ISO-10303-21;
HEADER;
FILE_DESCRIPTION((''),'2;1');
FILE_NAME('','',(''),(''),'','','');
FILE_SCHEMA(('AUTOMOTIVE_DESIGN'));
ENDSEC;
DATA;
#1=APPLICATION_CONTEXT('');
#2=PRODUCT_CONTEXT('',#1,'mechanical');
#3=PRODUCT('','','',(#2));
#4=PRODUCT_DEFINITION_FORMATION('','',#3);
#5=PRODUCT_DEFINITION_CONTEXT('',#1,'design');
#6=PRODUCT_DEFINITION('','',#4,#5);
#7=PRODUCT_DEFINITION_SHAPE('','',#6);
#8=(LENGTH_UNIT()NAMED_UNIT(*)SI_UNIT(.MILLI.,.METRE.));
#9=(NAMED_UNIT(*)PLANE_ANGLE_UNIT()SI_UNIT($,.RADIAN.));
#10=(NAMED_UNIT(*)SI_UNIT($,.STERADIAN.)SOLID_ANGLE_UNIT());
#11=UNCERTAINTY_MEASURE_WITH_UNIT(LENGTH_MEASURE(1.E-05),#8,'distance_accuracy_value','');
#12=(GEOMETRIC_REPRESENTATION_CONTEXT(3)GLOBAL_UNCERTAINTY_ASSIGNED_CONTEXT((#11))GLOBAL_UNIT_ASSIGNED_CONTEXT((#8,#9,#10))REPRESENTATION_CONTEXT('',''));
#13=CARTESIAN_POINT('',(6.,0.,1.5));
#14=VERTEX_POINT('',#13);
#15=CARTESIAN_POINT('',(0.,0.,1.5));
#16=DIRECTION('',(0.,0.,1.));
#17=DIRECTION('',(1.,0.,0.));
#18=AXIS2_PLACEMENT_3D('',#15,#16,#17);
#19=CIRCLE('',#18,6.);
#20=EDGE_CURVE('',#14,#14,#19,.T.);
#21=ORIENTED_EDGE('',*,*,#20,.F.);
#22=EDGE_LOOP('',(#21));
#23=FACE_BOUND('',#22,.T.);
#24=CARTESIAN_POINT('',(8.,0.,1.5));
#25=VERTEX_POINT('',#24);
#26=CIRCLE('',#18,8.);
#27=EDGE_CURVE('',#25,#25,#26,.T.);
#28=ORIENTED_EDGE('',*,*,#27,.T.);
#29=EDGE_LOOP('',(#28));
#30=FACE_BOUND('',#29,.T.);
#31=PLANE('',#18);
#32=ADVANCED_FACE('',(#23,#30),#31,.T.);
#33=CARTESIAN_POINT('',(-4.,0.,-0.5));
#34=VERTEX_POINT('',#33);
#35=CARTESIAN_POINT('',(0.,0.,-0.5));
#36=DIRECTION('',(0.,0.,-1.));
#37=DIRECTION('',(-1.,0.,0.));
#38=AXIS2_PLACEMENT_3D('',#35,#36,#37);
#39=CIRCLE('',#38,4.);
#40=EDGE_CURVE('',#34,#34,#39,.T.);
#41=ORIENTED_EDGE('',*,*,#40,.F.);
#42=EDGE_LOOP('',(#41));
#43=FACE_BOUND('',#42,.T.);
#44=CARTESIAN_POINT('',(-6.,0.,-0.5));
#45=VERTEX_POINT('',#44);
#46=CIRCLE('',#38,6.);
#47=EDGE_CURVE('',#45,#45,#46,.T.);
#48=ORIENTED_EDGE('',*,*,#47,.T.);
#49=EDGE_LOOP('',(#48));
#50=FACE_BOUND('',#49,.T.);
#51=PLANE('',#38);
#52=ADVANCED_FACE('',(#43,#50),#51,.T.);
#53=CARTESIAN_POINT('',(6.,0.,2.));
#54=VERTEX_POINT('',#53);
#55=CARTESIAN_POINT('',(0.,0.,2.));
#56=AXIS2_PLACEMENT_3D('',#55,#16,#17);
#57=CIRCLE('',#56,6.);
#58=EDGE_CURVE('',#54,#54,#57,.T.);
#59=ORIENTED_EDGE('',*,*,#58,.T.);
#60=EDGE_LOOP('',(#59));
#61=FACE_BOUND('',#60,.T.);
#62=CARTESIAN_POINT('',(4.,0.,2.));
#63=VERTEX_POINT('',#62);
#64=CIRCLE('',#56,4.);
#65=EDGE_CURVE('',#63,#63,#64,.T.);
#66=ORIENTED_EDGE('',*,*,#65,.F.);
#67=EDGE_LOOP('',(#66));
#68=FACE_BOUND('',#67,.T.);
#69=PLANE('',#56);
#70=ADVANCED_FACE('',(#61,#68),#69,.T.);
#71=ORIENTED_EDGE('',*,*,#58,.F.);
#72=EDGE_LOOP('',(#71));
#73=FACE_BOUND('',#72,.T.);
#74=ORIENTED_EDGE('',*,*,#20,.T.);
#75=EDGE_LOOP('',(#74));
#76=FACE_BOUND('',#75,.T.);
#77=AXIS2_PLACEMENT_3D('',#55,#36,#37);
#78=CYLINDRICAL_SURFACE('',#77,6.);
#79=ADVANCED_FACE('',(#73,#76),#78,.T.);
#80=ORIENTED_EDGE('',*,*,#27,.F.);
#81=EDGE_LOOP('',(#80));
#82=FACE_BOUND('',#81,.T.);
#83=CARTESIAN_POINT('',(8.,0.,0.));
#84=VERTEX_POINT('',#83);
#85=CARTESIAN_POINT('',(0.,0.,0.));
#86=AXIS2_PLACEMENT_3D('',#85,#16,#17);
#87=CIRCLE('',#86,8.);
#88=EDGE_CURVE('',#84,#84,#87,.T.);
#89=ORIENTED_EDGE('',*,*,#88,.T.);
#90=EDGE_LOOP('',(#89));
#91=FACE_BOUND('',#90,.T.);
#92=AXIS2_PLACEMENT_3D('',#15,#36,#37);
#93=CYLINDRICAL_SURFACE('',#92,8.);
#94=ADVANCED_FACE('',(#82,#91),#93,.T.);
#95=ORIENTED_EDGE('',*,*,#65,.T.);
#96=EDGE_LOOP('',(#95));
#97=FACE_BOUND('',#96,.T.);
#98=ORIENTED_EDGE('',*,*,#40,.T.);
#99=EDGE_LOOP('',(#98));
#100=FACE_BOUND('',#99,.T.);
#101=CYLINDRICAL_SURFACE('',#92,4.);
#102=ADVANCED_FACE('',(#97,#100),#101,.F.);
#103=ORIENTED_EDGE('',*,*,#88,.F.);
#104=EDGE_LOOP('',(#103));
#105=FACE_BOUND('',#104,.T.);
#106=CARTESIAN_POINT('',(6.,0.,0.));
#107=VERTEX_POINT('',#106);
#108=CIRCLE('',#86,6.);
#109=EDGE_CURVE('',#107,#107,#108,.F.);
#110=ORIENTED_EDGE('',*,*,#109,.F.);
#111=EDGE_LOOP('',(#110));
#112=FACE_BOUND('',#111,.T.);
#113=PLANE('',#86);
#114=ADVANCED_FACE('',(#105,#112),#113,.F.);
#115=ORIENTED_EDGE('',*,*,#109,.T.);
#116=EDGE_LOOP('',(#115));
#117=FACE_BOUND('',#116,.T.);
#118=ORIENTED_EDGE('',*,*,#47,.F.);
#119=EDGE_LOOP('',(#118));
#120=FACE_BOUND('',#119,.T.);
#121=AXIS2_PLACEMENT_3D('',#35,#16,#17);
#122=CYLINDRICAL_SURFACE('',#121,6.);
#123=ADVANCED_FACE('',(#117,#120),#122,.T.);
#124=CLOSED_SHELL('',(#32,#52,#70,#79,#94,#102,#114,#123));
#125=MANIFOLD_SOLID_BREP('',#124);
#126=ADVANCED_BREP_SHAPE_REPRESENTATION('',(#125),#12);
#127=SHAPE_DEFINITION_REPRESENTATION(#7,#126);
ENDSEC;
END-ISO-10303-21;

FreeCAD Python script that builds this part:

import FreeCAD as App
import Part
import Sketcher
from FreeCAD import Vector
Q = App.Units.Quantity

doc = App.newDocument("Part")
body = doc.addObject("PartDesign::Body", "Body")

sketch1 = doc.addObject("Sketcher::SketchObject", "Sketch")
body.addObject(sketch1)
sketch1.AttachmentSupport = (doc.XY_Plane, [""])
sketch1.MapMode = "FlatFace"
sketch1.addGeometry([
    Part.Circle(Vector(0, 0, 0), Vector(0, 0, 1), 8),
    Part.Circle(Vector(0, 0, 0), Vector(0, 0, 1), 4),
], False)
sketch1.addConstraint([
    Sketcher.Constraint("Coincident", 0, 3, -1, 1),
    Sketcher.Constraint("Coincident", 1, 3, -1, 1),
    Sketcher.Constraint("Diameter", 0, Q("16 mm")),
    Sketcher.Constraint("Diameter", 1, Q("8 mm")),
])
pad1 = doc.addObject("PartDesign::Pad", "Pad")
body.addObject(pad1)
pad1.Profile = sketch1
pad1.Length = 1.5

sketch2 = doc.addObject("Sketcher::SketchObject", "Sketch001")
body.addObject(sketch2)
sketch2.AttachmentSupport = (doc.XY_Plane, [""])
sketch2.MapMode = "FlatFace"
sketch2.AttachmentOffset = App.Placement(Vector(0, 0, 1.5), App.Rotation())
sketch2.addGeometry([
    Part.Circle(Vector(0, 0, 0), Vector(0, 0, 1), 6),
    Part.Circle(Vector(0, 0, 0), Vector(0, 0, 1), 4),
], False)
sketch2.addConstraint([
    Sketcher.Constraint("Coincident", 0, 3, -1, 1),
    Sketcher.Constraint("Coincident", 1, 3, -1, 1),
    Sketcher.Constraint("Diameter", 0, Q("12 mm")),
    Sketcher.Constraint("Diameter", 1, Q("8 mm")),
])
pad2 = doc.addObject("PartDesign::Pad", "Pad001")
body.addObject(pad2)
pad2.Profile = sketch2
pad2.Length = 0.5

sketch3 = doc.addObject("Sketcher::SketchObject", "Sketch002")
body.addObject(sketch3)
sketch3.AttachmentSupport = (doc.XY_Plane, [""])
sketch3.MapMode = "FlatFace"
sketch3.AttachmentOffset = App.Placement(Vector(0, 0, -0.5), App.Rotation())
sketch3.addGeometry([
    Part.Circle(Vector(0, 0, 0), Vector(0, 0, 1), 6),
    Part.Circle(Vector(0, 0, 0), Vector(0, 0, 1), 4),
], False)
sketch3.addConstraint([
    Sketcher.Constraint("Coincident", 0, 3, -1, 1),
    Sketcher.Constraint("Coincident", 1, 3, -1, 1),
    Sketcher.Constraint("Diameter", 0, Q("12 mm")),
    Sketcher.Constraint("Diameter", 1, Q("8 mm")),
])
pad3 = doc.addObject("PartDesign::Pad", "Pad002")
body.addObject(pad3)
pad3.Profile = sketch3
pad3.Length = 0.5

doc.recompute()
